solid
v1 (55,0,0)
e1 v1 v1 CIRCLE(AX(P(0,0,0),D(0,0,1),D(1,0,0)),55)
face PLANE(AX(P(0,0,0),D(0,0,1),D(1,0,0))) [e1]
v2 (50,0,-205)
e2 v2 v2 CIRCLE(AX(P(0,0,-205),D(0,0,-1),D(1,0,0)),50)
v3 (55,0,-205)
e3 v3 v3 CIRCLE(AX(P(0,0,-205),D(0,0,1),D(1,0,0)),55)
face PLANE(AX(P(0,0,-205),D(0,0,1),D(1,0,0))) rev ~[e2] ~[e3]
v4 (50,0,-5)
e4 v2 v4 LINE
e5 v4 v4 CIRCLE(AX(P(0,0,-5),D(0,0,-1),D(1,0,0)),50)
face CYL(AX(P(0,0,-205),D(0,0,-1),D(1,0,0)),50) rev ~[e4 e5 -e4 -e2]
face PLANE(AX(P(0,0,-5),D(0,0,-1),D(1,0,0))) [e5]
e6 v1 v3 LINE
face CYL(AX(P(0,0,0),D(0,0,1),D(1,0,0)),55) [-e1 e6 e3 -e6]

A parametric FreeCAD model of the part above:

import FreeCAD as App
import Part
import Sketcher
from FreeCAD import Vector
Q = App.Units.Quantity

doc = App.newDocument("Part")
body = doc.addObject("PartDesign::Body", "Body")

sketch1 = body.newObject("Sketcher::SketchObject", "Sketch")
sketch1.AttachmentSupport = (doc.getObject("XY_Plane"), [""])
sketch1.MapMode = "FlatFace"
sketch1.addGeometry(Part.Circle(Vector(0, 0, 0), Vector(0, 0, 1), 55), False)
sketch1.addConstraint(Sketcher.Constraint("Coincident", 0, 3, -1, 1))
sketch1.addConstraint(Sketcher.Constraint("Diameter", 0, Q("110 mm")))
pad1 = body.newObject("PartDesign::Pad", "Pad")
pad1.Profile = sketch1
pad1.Length = 205
pad1.Reversed = True

sketch2 = body.newObject("Sketcher::SketchObject", "Sketch001")
sketch2.AttachmentSupport = (doc.getObject("XY_Plane"), [""])
sketch2.MapMode = "FlatFace"
sketch2.AttachmentOffset = App.Placement(Vector(0, 0, -205), App.Rotation())
sketch2.addGeometry(Part.Circle(Vector(0, 0, 0), Vector(0, 0, 1), 50), False)
sketch2.addConstraint(Sketcher.Constraint("Coincident", 0, 3, -1, 1))
sketch2.addConstraint(Sketcher.Constraint("Diameter", 0, Q("100 mm")))
pocket1 = body.newObject("PartDesign::Pocket", "Pocket")
pocket1.Profile = sketch2
pocket1.Length = 200
pocket1.Reversed = True

doc.recompute()
